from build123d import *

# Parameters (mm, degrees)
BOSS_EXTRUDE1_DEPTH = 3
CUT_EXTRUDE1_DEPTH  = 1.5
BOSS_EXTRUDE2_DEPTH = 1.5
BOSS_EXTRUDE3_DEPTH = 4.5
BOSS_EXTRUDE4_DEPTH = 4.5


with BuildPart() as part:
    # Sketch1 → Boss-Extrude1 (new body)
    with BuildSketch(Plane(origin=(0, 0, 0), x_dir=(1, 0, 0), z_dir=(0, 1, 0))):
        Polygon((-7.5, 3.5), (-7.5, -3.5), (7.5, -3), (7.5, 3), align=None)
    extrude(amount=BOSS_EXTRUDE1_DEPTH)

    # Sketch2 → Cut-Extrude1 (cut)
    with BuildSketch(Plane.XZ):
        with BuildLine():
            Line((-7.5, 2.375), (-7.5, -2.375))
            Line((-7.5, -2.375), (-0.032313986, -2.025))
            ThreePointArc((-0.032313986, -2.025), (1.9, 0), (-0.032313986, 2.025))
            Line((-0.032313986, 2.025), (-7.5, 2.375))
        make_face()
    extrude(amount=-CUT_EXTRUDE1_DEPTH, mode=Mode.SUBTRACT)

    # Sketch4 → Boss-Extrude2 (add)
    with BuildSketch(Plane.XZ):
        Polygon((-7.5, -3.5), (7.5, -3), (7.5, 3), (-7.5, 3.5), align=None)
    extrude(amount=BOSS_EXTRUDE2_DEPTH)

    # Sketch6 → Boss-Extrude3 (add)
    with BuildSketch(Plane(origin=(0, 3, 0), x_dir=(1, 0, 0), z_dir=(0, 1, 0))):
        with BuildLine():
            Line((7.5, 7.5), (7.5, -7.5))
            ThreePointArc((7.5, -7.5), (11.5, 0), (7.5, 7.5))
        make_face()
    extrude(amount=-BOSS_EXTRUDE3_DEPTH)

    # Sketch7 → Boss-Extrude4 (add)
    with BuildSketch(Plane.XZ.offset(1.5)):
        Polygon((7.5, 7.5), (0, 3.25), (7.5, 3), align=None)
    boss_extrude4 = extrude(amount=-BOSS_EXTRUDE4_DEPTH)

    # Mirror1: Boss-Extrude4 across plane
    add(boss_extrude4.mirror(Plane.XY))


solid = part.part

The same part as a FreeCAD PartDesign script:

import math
import FreeCAD as App
import Part
import Sketcher
from FreeCAD import Vector
Q = App.Units.Quantity

doc = App.newDocument("Part")
body = doc.addObject("PartDesign::Body", "Body")

# Sketch on XZ plane
sketch1 = body.newObject("Sketcher::SketchObject", "Sketch")
sketch1.AttachmentSupport = (doc.getObject("XZ_Plane"), [""])
sketch1.MapMode = "FlatFace"
sketch1.addGeometry(Part.LineSegment(Vector(-8, -4, 0), Vector(-8, 4, 0)), False)
sketch1.addGeometry(Part.LineSegment(Vector(-8, 4, 0), Vector(8, 3, 0)), False)
sketch1.addGeometry(Part.LineSegment(Vector(8, 3, 0), Vector(8, -3, 0)), False)
sketch1.addGeometry(Part.LineSegment(Vector(8, -3, 0), Vector(-8, -4, 0)), False)
sketch1.addConstraint(Sketcher.Constraint("Coincident", 0, 2, 1, 1))
sketch1.addConstraint(Sketcher.Constraint("Coincident", 1, 2, 2, 1))
sketch1.addConstraint(Sketcher.Constraint("Coincident", 2, 2, 3, 1))
sketch1.addConstraint(Sketcher.Constraint("Coincident", 3, 2, 0, 1))
sketch1.addConstraint(Sketcher.Constraint("Vertical", 0))
sketch1.addConstraint(Sketcher.Constraint("Vertical", 2))
sketch1.addConstraint(Sketcher.Constraint("Equal", 1, 3))
sketch1.addConstraint(Sketcher.Constraint("DistanceY", 0, 1, 0, 2, Q("7 mm")))
sketch1.addConstraint(Sketcher.Constraint("DistanceY", 2, 2, 2, 1, Q("6 mm")))
sketch1.addConstraint(Sketcher.Constraint("DistanceY", -1, 1, 1, 2, Q("3 mm")))
sketch1.addConstraint(Sketcher.Constraint("DistanceX", 0, 2, 1, 2, Q("15 mm")))
sketch1.addConstraint(Sketcher.Constraint("DistanceX", 0, 2, -1, 1, Q("7.5 mm")))
pad1 = body.newObject("PartDesign::Pad", "Pad")
pad1.Profile = sketch1
pad1.Length = 3
pad1.Reversed = True

# Sketch on XZ plane
sketch2 = body.newObject("Sketcher::SketchObject", "Sketch001")
sketch2.AttachmentSupport = (doc.getObject("XZ_Plane"), [""])
sketch2.MapMode = "FlatFace"
sketch2.addGeometry(Part.LineSegment(Vector(-7.5, 2.4, 0), Vector(-7.5, -2.4, 0)), False)
sketch2.addGeometry(Part.LineSegment(Vector(-7.5, -2.4, 0), Vector(0, -2, 0)), False)
sketch2.addGeometry(Part.ArcOfCircle(Part.Circle(Vector(-0.1, 0, 0), Vector(0, 0, 1), 2), math.radians(-87), math.radians(87)), False)
sketch2.addGeometry(Part.LineSegment(Vector(0, 2, 0), Vector(-7.5, 2.4, 0)), False)
sketch2.addConstraint(Sketcher.Constraint("Coincident", 0, 2, 1, 1))
sketch2.addConstraint(Sketcher.Constraint("Tangent", 1, 2, 2, 1))
sketch2.addConstraint(Sketcher.Constraint("Tangent", 2, 2, 3, 1))
sketch2.addConstraint(Sketcher.Constraint("Coincident", 3, 2, 0, 1))
sketch2.addConstraint(Sketcher.Constraint("Vertical", 0))
sketch2.addConstraint(Sketcher.Constraint("Symmetric", 1, 2, 2, 2, -1))
sketch2.addConstraint(Sketcher.Constraint("DistanceY", 0, 2, 0, 1, Q("4.75 mm")))
sketch2.addConstraint(Sketcher.Constraint("DistanceX", 0, 2, -1, 1, Q("7.5 mm")))
sketch2.addConstraint(Sketcher.Constraint("DistanceY", 0, 2, 2, 2, Q("4.4 mm")))
sketch2.addConstraint(Sketcher.Constraint("DistanceX", 2, 3, 1, 2, Q("0.094909 mm")))
pocket1 = body.newObject("PartDesign::Pocket", "Pocket")
pocket1.Profile = sketch2
pocket1.Length = 1.5

# Sketch on XZ plane
sketch3 = body.newObject("Sketcher::SketchObject", "Sketch002")
sketch3.AttachmentSupport = (doc.getObject("XZ_Plane"), [""])
sketch3.MapMode = "FlatFace"
sketch3.addGeometry(Part.LineSegment(Vector(-8, -4, 0), Vector(8, -3, 0)), False)
sketch3.addGeometry(Part.LineSegment(Vector(8, -3, 0), Vector(8, 3, 0)), False)
sketch3.addGeometry(Part.LineSegment(Vector(8, 3, 0), Vector(-8, 4, 0)), False)
sketch3.addGeometry(Part.LineSegment(Vector(-8, 4, 0), Vector(-8, -4, 0)), False)
sketch3.addConstraint(Sketcher.Constraint("Coincident", 0, 2, 1, 1))
sketch3.addConstraint(Sketcher.Constraint("Coincident", 1, 2, 2, 1))
sketch3.addConstraint(Sketcher.Constraint("Coincident", 2, 2, 3, 1))
sketch3.addConstraint(Sketcher.Constraint("Coincident", 3, 2, 0, 1))
sketch3.addConstraint(Sketcher.Constraint("Vertical", 1))
sketch3.addConstraint(Sketcher.Constraint("Vertical", 3))
sketch3.addConstraint(Sketcher.Constraint("Equal", 0, 2))
sketch3.addConstraint(Sketcher.Constraint("DistanceY", 1, 1, 1, 2, Q("6 mm")))
sketch3.addConstraint(Sketcher.Constraint("DistanceY", 3, 2, 3, 1, Q("7 mm")))
sketch3.addConstraint(Sketcher.Constraint("DistanceY", 0, 2, -1, 1, Q("3 mm")))
sketch3.addConstraint(Sketcher.Constraint("DistanceX", 2, 2, 1, 2, Q("15 mm")))
sketch3.addConstraint(Sketcher.Constraint("DistanceX", -1, 1, 0, 2, Q("7.5 mm")))
pad2 = body.newObject("PartDesign::Pad", "Pad001")
pad2.Profile = sketch3
pad2.Length = 1.5

# Sketch on XZ plane
sketch4 = body.newObject("Sketcher::SketchObject", "Sketch003")
sketch4.AttachmentSupport = (doc.getObject("XZ_Plane"), [""])
sketch4.MapMode = "FlatFace"
sketch4.AttachmentOffset = App.Placement(Vector(0, 0, -3), App.Rotation())
sketch4.addGeometry(Part.LineSegment(Vector(8, -8, 0), Vector(8, 8, 0)), False)
sketch4.addGeometry(Part.ArcOfCircle(Part.Circle(Vector(2, 0, 0), Vector(0, 0, 1), 9), math.radians(-56), math.radians(56)), False)
sketch4.addConstraint(Sketcher.Constraint("Coincident", 0, 1, 1, 1))
sketch4.addConstraint(Sketcher.Constraint("Coincident", 1, 2, 0, 2))
sketch4.addConstraint(Sketcher.Constraint("Vertical", 0))
sketch4.addConstraint(Sketcher.Constraint("PointOnObject", 1, 3, -1))
sketch4.addConstraint(Sketcher.Constraint("DistanceY", 0, 1, 0, 2, Q("15 mm")))
sketch4.addConstraint(Sketcher.Constraint("DistanceX", -1, 1, 0, 1, Q("7.5 mm")))
sketch4.addConstraint(Sketcher.Constraint("Radius", 1, Q("9.03125 mm")))
pad3 = body.newObject("PartDesign::Pad", "Pad002")
pad3.Profile = sketch4
pad3.Length = 4.5

# Sketch on XZ plane
sketch5 = body.newObject("Sketcher::SketchObject", "Sketch004")
sketch5.AttachmentSupport = (doc.getObject("XZ_Plane"), [""])
sketch5.MapMode = "FlatFace"
sketch5.AttachmentOffset = App.Placement(Vector(0, 0, 1.5), App.Rotation())
sketch5.addGeometry(Part.LineSegment(Vector(7.5, 7.5, 0), Vector(0, 3.2, 0)), False)
sketch5.addGeometry(Part.LineSegment(Vector(0, 3.2, 0), Vector(7.5, 3, 0)), False)
sketch5.addGeometry(Part.LineSegment(Vector(7.5, 3, 0), Vector(7.5, 7.5, 0)), False)
sketch5.addConstraint(Sketcher.Constraint("Coincident", 0, 2, 1, 1))
sketch5.addConstraint(Sketcher.Constraint("Coincident", 1, 2, 2, 1))
sketch5.addConstraint(Sketcher.Constraint("Coincident", 2, 2, 0, 1))
sketch5.addConstraint(Sketcher.Constraint("Vertical", 2))
sketch5.addConstraint(Sketcher.Constraint("PointOnObject", 0, 2, -2))
sketch5.addConstraint(Sketcher.Constraint("DistanceY", 2, 1, 2, 2, Q("4.5 mm")))
sketch5.addConstraint(Sketcher.Constraint("DistanceY", -1, 1, 1, 2, Q("3 mm")))
sketch5.addConstraint(Sketcher.Constraint("DistanceX", -1, 1, 1, 2, Q("7.5 mm")))
sketch5.addConstraint(Sketcher.Constraint("DistanceY", -1, 1, 0, 2, Q("3.25 mm")))
pad4 = body.newObject("PartDesign::Pad", "Pad003")
pad4.Profile = sketch5
pad4.Length = 4.5
pad4.Reversed = True
doc.recompute()

mirrored = body.newObject("PartDesign::Mirrored", "Mirrored")
mirrored.Originals = [pad4]
mirrored.MirrorPlane = (doc.getObject("XY_Plane"), [""])
body.Tip = mirrored

doc.recompute()
